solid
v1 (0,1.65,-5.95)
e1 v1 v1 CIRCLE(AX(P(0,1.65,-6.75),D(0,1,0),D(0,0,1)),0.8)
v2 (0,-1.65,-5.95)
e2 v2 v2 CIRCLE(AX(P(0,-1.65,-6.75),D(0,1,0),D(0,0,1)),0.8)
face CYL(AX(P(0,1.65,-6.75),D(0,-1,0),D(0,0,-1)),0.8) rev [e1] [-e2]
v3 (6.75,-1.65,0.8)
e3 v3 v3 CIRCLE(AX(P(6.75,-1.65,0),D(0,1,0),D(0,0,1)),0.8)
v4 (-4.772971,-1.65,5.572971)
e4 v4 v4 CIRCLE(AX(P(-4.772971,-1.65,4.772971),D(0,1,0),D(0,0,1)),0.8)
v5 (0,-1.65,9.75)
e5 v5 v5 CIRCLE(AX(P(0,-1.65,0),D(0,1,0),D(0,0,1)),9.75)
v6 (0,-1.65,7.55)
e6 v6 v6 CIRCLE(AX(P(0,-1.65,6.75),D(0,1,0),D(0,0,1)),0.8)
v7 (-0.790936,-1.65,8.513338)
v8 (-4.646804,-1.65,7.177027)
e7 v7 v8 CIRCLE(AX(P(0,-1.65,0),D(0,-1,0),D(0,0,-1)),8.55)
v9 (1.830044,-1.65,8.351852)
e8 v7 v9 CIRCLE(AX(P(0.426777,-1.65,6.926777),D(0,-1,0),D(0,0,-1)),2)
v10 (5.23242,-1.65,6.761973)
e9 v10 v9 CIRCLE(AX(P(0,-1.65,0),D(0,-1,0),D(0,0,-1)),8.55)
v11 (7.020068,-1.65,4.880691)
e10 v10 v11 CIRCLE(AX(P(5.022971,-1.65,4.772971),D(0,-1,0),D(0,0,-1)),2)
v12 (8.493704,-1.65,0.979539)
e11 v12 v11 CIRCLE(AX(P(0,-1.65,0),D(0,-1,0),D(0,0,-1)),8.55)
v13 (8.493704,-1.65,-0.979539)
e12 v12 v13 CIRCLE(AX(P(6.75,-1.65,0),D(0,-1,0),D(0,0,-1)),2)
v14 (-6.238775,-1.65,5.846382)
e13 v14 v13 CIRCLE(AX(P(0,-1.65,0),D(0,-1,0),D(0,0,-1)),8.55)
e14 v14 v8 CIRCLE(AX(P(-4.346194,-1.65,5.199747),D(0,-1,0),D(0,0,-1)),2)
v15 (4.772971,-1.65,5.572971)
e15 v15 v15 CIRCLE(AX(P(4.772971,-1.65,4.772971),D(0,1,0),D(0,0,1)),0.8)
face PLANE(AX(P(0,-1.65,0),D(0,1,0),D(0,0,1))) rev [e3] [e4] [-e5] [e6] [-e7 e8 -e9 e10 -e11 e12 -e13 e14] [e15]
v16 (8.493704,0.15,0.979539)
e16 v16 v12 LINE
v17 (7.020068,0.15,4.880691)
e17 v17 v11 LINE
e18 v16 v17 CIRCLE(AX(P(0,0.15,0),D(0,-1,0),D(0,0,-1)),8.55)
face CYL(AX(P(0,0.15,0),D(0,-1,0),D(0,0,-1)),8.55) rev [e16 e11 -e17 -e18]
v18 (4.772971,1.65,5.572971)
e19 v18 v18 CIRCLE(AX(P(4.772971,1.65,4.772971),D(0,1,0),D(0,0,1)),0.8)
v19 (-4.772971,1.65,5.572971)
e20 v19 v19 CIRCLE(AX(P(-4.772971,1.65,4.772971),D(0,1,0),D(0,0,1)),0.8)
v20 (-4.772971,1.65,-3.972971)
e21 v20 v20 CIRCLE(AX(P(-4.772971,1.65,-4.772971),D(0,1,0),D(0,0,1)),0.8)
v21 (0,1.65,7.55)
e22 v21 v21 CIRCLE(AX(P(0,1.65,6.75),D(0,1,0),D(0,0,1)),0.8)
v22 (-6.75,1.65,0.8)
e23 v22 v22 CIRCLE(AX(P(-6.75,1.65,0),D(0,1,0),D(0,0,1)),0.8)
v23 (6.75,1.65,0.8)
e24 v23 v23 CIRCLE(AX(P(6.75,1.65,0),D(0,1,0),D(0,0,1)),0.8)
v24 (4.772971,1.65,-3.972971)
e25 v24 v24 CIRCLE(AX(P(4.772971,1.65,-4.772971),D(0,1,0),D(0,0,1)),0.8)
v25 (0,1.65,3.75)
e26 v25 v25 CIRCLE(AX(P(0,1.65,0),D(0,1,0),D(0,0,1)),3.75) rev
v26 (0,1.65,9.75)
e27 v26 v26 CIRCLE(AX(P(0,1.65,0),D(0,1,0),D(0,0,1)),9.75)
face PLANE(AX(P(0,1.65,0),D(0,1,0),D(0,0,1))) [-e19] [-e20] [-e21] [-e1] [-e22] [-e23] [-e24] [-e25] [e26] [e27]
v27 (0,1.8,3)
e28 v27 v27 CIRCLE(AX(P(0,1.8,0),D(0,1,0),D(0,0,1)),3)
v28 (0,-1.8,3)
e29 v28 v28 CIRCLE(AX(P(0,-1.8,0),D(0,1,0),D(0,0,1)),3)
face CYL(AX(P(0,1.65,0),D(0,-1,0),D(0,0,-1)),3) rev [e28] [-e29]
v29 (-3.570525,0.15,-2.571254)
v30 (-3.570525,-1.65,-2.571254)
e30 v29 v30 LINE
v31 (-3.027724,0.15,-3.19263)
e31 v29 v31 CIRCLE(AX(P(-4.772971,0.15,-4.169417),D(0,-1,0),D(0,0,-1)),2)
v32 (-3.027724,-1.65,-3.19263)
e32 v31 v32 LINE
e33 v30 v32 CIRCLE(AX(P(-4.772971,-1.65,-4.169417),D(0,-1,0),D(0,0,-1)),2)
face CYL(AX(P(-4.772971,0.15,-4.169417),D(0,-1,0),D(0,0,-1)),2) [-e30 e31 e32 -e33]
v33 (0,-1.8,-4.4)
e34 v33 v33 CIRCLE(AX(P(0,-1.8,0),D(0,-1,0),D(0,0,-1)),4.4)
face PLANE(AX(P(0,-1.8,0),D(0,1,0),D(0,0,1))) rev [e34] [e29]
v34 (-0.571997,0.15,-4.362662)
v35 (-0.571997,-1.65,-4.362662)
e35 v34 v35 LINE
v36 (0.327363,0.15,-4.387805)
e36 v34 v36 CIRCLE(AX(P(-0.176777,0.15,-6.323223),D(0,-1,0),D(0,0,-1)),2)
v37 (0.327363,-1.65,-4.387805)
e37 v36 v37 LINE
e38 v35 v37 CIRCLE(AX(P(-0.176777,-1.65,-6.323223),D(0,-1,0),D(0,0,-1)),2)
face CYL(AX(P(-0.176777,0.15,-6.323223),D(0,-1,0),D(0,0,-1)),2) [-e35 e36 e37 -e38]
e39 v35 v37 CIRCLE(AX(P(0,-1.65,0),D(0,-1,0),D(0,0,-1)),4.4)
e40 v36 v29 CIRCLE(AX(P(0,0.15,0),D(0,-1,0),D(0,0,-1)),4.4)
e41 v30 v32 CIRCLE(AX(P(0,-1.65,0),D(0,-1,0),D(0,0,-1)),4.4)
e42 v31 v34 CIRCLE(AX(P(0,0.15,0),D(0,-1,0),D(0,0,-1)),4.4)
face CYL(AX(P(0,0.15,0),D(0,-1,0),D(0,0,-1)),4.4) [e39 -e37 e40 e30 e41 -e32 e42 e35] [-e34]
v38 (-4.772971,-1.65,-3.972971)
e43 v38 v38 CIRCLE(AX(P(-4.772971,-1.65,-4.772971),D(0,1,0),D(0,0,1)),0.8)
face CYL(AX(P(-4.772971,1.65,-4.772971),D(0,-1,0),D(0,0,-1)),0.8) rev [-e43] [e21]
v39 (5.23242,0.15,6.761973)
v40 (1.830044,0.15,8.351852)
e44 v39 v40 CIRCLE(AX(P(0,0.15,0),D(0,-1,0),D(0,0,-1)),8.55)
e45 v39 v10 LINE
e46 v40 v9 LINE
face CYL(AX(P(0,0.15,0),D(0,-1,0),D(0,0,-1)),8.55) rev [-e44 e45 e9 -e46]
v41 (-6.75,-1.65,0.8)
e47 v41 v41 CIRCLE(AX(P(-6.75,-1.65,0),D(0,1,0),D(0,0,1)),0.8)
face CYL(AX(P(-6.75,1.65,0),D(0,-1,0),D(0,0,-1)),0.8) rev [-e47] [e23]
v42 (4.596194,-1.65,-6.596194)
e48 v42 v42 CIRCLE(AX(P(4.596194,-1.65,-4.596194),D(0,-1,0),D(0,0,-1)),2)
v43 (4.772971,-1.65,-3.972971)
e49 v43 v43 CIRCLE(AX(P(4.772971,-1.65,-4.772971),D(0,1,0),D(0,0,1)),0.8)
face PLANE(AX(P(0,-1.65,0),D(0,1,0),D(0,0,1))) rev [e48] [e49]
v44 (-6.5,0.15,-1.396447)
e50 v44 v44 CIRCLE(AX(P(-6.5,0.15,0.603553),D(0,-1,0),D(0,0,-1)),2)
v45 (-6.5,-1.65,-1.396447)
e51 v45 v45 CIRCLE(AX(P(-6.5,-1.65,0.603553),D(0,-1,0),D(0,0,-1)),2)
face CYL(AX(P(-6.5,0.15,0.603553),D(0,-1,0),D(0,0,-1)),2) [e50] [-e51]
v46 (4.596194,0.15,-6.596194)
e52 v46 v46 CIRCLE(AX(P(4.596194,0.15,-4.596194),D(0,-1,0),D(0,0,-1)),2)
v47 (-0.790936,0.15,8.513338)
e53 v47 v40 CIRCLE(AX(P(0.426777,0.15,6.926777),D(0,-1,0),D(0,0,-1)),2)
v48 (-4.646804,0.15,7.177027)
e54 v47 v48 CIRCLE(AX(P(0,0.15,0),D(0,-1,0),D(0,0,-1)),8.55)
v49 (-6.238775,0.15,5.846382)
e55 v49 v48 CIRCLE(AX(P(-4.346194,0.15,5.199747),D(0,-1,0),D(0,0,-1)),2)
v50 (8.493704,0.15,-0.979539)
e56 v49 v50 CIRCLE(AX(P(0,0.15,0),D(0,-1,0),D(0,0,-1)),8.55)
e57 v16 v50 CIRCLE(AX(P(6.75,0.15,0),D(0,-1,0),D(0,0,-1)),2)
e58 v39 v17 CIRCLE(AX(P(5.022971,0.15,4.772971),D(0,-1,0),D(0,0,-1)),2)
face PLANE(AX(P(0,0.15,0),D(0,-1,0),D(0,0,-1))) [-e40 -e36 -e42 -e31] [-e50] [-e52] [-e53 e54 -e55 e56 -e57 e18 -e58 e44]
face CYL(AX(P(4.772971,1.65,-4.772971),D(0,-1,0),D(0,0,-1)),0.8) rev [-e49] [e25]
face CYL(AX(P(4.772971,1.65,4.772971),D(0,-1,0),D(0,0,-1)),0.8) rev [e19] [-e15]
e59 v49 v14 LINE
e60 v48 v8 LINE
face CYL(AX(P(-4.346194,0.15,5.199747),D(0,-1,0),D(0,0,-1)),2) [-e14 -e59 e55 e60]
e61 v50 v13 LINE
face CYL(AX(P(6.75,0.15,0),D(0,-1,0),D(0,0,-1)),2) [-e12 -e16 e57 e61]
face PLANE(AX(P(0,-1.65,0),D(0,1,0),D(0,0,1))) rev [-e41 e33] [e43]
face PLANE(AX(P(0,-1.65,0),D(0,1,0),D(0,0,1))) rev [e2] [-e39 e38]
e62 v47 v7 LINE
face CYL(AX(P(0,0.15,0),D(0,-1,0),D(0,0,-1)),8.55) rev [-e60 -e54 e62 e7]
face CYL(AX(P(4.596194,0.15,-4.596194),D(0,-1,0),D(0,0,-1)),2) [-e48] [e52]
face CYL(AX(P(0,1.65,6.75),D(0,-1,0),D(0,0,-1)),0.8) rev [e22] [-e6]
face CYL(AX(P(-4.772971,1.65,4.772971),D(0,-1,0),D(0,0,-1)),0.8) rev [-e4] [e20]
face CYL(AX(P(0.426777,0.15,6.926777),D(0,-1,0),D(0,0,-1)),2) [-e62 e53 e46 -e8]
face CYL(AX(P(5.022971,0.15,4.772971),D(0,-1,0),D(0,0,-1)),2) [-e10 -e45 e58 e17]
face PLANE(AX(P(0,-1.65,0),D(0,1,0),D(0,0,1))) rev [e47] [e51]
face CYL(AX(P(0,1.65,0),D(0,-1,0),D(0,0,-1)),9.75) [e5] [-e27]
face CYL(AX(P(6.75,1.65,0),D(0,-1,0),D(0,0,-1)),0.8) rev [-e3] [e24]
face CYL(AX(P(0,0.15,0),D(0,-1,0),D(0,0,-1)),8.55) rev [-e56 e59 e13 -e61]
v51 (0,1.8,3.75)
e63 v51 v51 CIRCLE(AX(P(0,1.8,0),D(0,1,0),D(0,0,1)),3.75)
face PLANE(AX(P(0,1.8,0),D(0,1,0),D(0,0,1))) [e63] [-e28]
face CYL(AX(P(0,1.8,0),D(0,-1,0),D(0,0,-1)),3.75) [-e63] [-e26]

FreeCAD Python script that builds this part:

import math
import FreeCAD as App
import Part
import Sketcher
Q = App.Units.Quantity

doc = App.newDocument("Part")
body = doc.addObject("PartDesign::Body", "Body")

# Sketch on XZ plane
sketch1 = body.newObject("Sketcher::SketchObject", "Sketch")
sketch1.AttachmentSupport = (doc.getObject("XZ_Plane"), [""])
sketch1.MapMode = "FlatFace"
sketch1.addGeometry([
    Part.Circle(App.Vector(0, 0, 0), App.Vector(0, 0, 1), 9.8),  # 0
    Part.Circle(App.Vector(-4.8, 4.8, 0), App.Vector(0, 0, 1), 0.8),  # 1
    Part.Circle(App.Vector(0, 6.8, 0), App.Vector(0, 0, 1), 0.8),  # 2
    Part.Circle(App.Vector(4.8, 4.8, 0), App.Vector(0, 0, 1), 0.8),  # 3
    Part.Circle(App.Vector(-6.8, 0, 0), App.Vector(0, 0, 1), 0.8),  # 4
    Part.Circle(App.Vector(-4.8, -4.8, 0), App.Vector(0, 0, 1), 0.8),  # 5
    Part.Circle(App.Vector(0, 0, 0), App.Vector(0, 0, 1), 3),  # 6
    Part.Circle(App.Vector(6.8, 0, 0), App.Vector(0, 0, 1), 0.8),  # 7
    Part.Circle(App.Vector(0, -6.8, 0), App.Vector(0, 0, 1), 0.8),  # 8
    Part.Circle(App.Vector(4.8, -4.8, 0), App.Vector(0, 0, 1), 0.8),  # 9
], False)
sketch1.addConstraint([
    Sketcher.Constraint("Coincident", 0, 3, -1, 1),
    Sketcher.Constraint("Coincident", 6, 3, -1, 1),
    Sketcher.Constraint("Equal", 1, 2),
    Sketcher.Constraint("Equal", 2, 3),
    Sketcher.Constraint("Equal", 3, 4),
    Sketcher.Constraint("Equal", 4, 5),
    Sketcher.Constraint("Equal", 5, 7),
    Sketcher.Constraint("Equal", 7, 8),
    Sketcher.Constraint("Equal", 8, 9),
    Sketcher.Constraint("Symmetric", 3, 3, 5, 3, -1, 1),
    Sketcher.Constraint("Symmetric", 4, 3, 7, 3, -1, 1),
    Sketcher.Constraint("Symmetric", 2, 3, 8, 3, -1, 1),
    Sketcher.Constraint("Symmetric", 1, 3, 9, 3, -1, 1),
    Sketcher.Constraint("Symmetric", 1, 3, 3, 3, -2),
    Sketcher.Constraint("PointOnObject", 2, 3, -2),
    Sketcher.Constraint("PointOnObject", 4, 3, -1),
    Sketcher.Constraint("Diameter", 6, Q("6 mm")),
    Sketcher.Constraint("Diameter", 0, Q("19.5 mm")),
    Sketcher.Constraint("Diameter", 1, Q("1.6 mm")),
    Sketcher.Constraint("DistanceY", -1, 1, 2, 3, Q("6.75 mm")),
    Sketcher.Constraint("DistanceX", 4, 3, -1, 1, Q("6.75 mm")),
    Sketcher.Constraint("DistanceX", 1, 3, -1, 1, Q("4.772971 mm")),
    Sketcher.Constraint("DistanceY", -1, 1, 1, 3, Q("4.772971 mm")),
])
pad1 = body.newObject("PartDesign::Pad", "Pad")
pad1.Profile = sketch1
pad1.Length = 3.3
pad1.Midplane = True

# Sketch on XZ plane
sketch2 = body.newObject("Sketcher::SketchObject", "Sketch001")
sketch2.AttachmentSupport = (doc.getObject("XZ_Plane"), [""])
sketch2.MapMode = "FlatFace"
sketch2.addGeometry([
    Part.Circle(App.Vector(0, 0, 0), App.Vector(0, 0, 1), 3.8),
    Part.Circle(App.Vector(0, 0, 0), App.Vector(0, 0, 1), 3),
], False)
sketch2.addConstraint([
    Sketcher.Constraint("Coincident", 0, 3, -1, 1),
    Sketcher.Constraint("Coincident", 1, 3, -1, 1),
    Sketcher.Constraint("Diameter", 1, Q("6 mm")),
    Sketcher.Constraint("Diameter", 0, Q("7.5 mm")),
])
pad2 = body.newObject("PartDesign::Pad", "Pad001")
pad2.Profile = sketch2
pad2.Length = 3.6
pad2.Midplane = True

# Sketch on XZ plane
sketch3 = body.newObject("Sketcher::SketchObject", "Sketch002")
sketch3.AttachmentSupport = (doc.getObject("XZ_Plane"), [""])
sketch3.MapMode = "FlatFace"
sketch3.AttachmentOffset = App.Placement(App.Vector(0, 0, 1.65), App.Rotation())
sketch3.addGeometry([
    Part.ArcOfCircle(Part.Circle(App.Vector(6.75, 0, 0), App.Vector(0, 0, 1), 2), math.radians(29.325445), math.radians(330.674555)),  # 0
    Part.ArcOfCircle(Part.Circle(App.Vector(0, 0, 0), App.Vector(0, 0, 1), 8.55), math.radians(6.578594), math.radians(34.808899)),  # 1
    Part.ArcOfCircle(Part.Circle(App.Vector(5.022969, 4.772971, 0), App.Vector(0, 0, 1), 2.000002), math.radians(0.000001), math.radians(3.087463)),  # 2
    Part.ArcOfCircle(Part.Circle(App.Vector(5.022971, 4.772971, 0), App.Vector(0, 0, 1), 2), math.radians(83.988705), math.radians(360)),  # 3
    Part.ArcOfCircle(Part.Circle(App.Vector(0, 0, 0), App.Vector(0, 0, 1), 8.55), math.radians(52.26727), math.radians(77.640774)),  # 4
    Part.ArcOfCircle(Part.Circle(App.Vector(0.426777, 6.926777, 0), App.Vector(0, 0, 1), 2), math.radians(0), math.radians(45.44178)),  # 5
    Part.ArcOfCircle(Part.Circle(App.Vector(0.426777, 6.926777, 0), App.Vector(0, 0, 1), 2), math.radians(127.50685), math.radians(360)),  # 6
    Part.ArcOfCircle(Part.Circle(App.Vector(0, 0, 0), App.Vector(0, 0, 1), 8.55), math.radians(95.307856), math.radians(122.921251)),  # 7
    Part.ArcOfCircle(Part.Circle(App.Vector(-4.346194, 5.199747, 0), App.Vector(0, 0, 1), 2), math.radians(0), math.radians(98.644594)),  # 8
    Part.ArcOfCircle(Part.Circle(App.Vector(-4.346194, 5.199747, 0), App.Vector(0, 0, 1), 2), math.radians(161.136342), math.radians(360)),  # 9
    Part.ArcOfCircle(Part.Circle(App.Vector(0, 0, 0), App.Vector(0, 0, 1), 8.55), math.radians(136.859685), math.radians(353.421406)),  # 10
    Part.ArcOfCircle(Part.Circle(App.Vector(0, 0, 0), App.Vector(0, 0, 1), 4.4), math.radians(-85.733218), math.radians(0)),  # 11
    Part.ArcOfCircle(Part.Circle(App.Vector(-0.176777, -6.323223, 0), App.Vector(0, 0, 1), 2), math.radians(0), math.radians(75.399983)),  # 12
    Part.ArcOfCircle(Part.Circle(App.Vector(-0.176777, -6.323223, 0), App.Vector(0, 0, 1), 2), math.radians(101.397245), math.radians(360)),  # 13
    Part.ArcOfCircle(Part.Circle(App.Vector(0, 0, 0), App.Vector(0, 0, 1), 4.4), math.radians(-133.481398), math.radians(-97.469554)),  # 14
    Part.ArcOfCircle(Part.Circle(App.Vector(-4.772971, -4.169417, 0), App.Vector(0, 0, 1), 2), math.radians(0), math.radians(29.235044)),  # 15
    Part.ArcOfCircle(Part.Circle(App.Vector(-4.772971, -4.169417, 0), App.Vector(0, 0, 1), 2), math.radians(53.042478), math.radians(360)),  # 16
    Part.ArcOfCircle(Part.Circle(App.Vector(0, 0, 0), App.Vector(0, 0, 1), 4.4), math.radians(0), math.radians(215.75892)),  # 17
    Part.Circle(App.Vector(4.596194, -4.596194, 0), App.Vector(0, 0, 1), 2),  # 18
    Part.Circle(App.Vector(-6.5, 0.603553, 0), App.Vector(0, 0, 1), 2),  # 19
], False)
sketch3.addConstraint([
    Sketcher.Constraint("Coincident", 0, 1, 1, 1),
    Sketcher.Constraint("Coincident", 1, 2, 2, 2),
    Sketcher.Constraint("Coincident", 2, 1, 3, 2),
    Sketcher.Constraint("Coincident", 3, 1, 4, 1),
    Sketcher.Constraint("Coincident", 4, 2, 5, 2),
    Sketcher.Constraint("Coincident", 5, 1, 6, 2),
    Sketcher.Constraint("Coincident", 6, 1, 7, 1),
    Sketcher.Constraint("Coincident", 7, 2, 8, 2),
    Sketcher.Constraint("Coincident", 8, 1, 9, 2),
    Sketcher.Constraint("Coincident", 9, 1, 10, 1),
    Sketcher.Constraint("Coincident", 10, 2, 0, 2),
    Sketcher.Constraint("Coincident", 11, 1, 12, 2),
    Sketcher.Constraint("Coincident", 12, 1, 13, 2),
    Sketcher.Constraint("Coincident", 13, 1, 14, 2),
    Sketcher.Constraint("Coincident", 14, 1, 15, 2),
    Sketcher.Constraint("Coincident", 15, 1, 16, 2),
    Sketcher.Constraint("Coincident", 16, 1, 17, 2),
    Sketcher.Constraint("Coincident", 17, 1, 11, 2),
    Sketcher.Constraint("Coincident", 1, 3, -1, 1),
    Sketcher.Constraint("Coincident", 4, 3, -1, 1),
    Sketcher.Constraint("Coincident", 7, 3, -1, 1),
    Sketcher.Constraint("Coincident", 10, 3, -1, 1),
    Sketcher.Constraint("Coincident", 11, 3, -1, 1),
    Sketcher.Constraint("Coincident", 14, 3, -1, 1),
    Sketcher.Constraint("Coincident", 17, 3, -1, 1),
    Sketcher.Constraint("Coincident", 3, 3, 2, 3),
    Sketcher.Constraint("Coincident", 6, 3, 5, 3),
    Sketcher.Constraint("Coincident", 9, 3, 8, 3),
    Sketcher.Constraint("Coincident", 13, 3, 12, 3),
    Sketcher.Constraint("Coincident", 16, 3, 15, 3),
    Sketcher.Constraint("PointOnObject", 0, 3, -1),
    Sketcher.Constraint("PointOnObject", 17, 1, -1),
    Sketcher.Constraint("Diameter", 18, Q("4 mm")),
    Sketcher.Constraint("Diameter", 19, Q("4 mm")),
    Sketcher.Constraint("Radius", 0, Q("2 mm")),
    Sketcher.Constraint("Radius", 2, Q("2.000002 mm")),
    Sketcher.Constraint("Radius", 5, Q("2 mm")),
    Sketcher.Constraint("Radius", 8, Q("2 mm")),
    Sketcher.Constraint("Radius", 12, Q("2 mm")),
    Sketcher.Constraint("Radius", 15, Q("2 mm")),
    Sketcher.Constraint("Radius", 11, Q("4.4 mm")),
    Sketcher.Constraint("Radius", 14, Q("4.4 mm")),
    Sketcher.Constraint("Radius", 1, Q("8.55 mm")),
    Sketcher.Constraint("Radius", 4, Q("8.55 mm")),
    Sketcher.Constraint("Radius", 7, Q("8.55 mm")),
    Sketcher.Constraint("Radius", 10, Q("8.55 mm")),
    Sketcher.Constraint("DistanceX", 19, 3, -1, 1, Q("6.5 mm")),
    Sketcher.Constraint("DistanceX", -1, 1, 0, 3, Q("6.75 mm")),
    Sketcher.Constraint("DistanceX", 2, 3, 1, 2, Q("1.997099 mm")),
    Sketcher.Constraint("DistanceX", 16, 1, 14, 1, Q("0.542802 mm")),
    Sketcher.Constraint("DistanceX", -1, 1, 2, 3, Q("5.022969 mm")),
    Sketcher.Constraint("DistanceX", 15, 3, -1, 1, Q("4.772971 mm")),
    Sketcher.Constraint("DistanceY", -1, 1, 2, 1, Q("4.772971 mm")),
    Sketcher.Constraint("DistanceY", -1, 1, 9, 1, Q("5.846382 mm")),
    Sketcher.Constraint("DistanceY", 13, 1, -1, 1, Q("4.362662 mm")),
    Sketcher.Constraint("DistanceX", 8, 3, 5, 3, Q("4.772971 mm")),
    Sketcher.Constraint("DistanceY", 8, 3, 5, 3, Q("1.727029 mm")),
    Sketcher.Constraint("DistanceX", 13, 3, 18, 3, Q("4.772971 mm")),
    Sketcher.Constraint("DistanceY", 13, 3, 18, 3, Q("1.727029 mm")),
    Sketcher.Constraint("DistanceY", 16, 3, 19, 3, Q("4.772971 mm")),
    Sketcher.Constraint("DistanceX", 18, 3, 0, 1, Q("3.89751 mm")),
    Sketcher.Constraint("DistanceX", 6, 3, 1, 2, Q("6.593291 mm")),
    Sketcher.Constraint("DistanceY", 5, 1, 6, 1, Q("1.586561 mm")),
    Sketcher.Constraint("DistanceY", 8, 1, 7, 2, Q("1.977279 mm")),
    Sketcher.Constraint("DistanceY", 12, 1, 11, 1, Q("1.935418 mm")),
    Sketcher.Constraint("DistanceY", 15, 1, -1, 1, Q("4.169417 mm")),
])
pocket1 = body.newObject("PartDesign::Pocket", "Pocket")
pocket1.Profile = sketch3
pocket1.Length = 1.8

# Sketch on XZ plane
sketch4 = body.newObject("Sketcher::SketchObject", "Sketch003")
sketch4.AttachmentSupport = (doc.getObject("XZ_Plane"), [""])
sketch4.MapMode = "FlatFace"
sketch4.AttachmentOffset = App.Placement(App.Vector(0, 0, 1.65), App.Rotation())
sketch4.addGeometry([
    Part.Circle(App.Vector(0, 0, 0), App.Vector(0, 0, 1), 4.4),
    Part.Circle(App.Vector(0, 0, 0), App.Vector(0, 0, 1), 3),
], False)
sketch4.addConstraint([
    Sketcher.Constraint("Coincident", 0, 3, -1, 1),
    Sketcher.Constraint("Coincident", 1, 3, -1, 1),
    Sketcher.Constraint("Diameter", 1, Q("6 mm")),
    Sketcher.Constraint("Diameter", 0, Q("8.8 mm")),
])
pad3 = body.newObject("PartDesign::Pad", "Pad002")
pad3.Profile = sketch4
pad3.Length = 0.15

doc.recompute()
